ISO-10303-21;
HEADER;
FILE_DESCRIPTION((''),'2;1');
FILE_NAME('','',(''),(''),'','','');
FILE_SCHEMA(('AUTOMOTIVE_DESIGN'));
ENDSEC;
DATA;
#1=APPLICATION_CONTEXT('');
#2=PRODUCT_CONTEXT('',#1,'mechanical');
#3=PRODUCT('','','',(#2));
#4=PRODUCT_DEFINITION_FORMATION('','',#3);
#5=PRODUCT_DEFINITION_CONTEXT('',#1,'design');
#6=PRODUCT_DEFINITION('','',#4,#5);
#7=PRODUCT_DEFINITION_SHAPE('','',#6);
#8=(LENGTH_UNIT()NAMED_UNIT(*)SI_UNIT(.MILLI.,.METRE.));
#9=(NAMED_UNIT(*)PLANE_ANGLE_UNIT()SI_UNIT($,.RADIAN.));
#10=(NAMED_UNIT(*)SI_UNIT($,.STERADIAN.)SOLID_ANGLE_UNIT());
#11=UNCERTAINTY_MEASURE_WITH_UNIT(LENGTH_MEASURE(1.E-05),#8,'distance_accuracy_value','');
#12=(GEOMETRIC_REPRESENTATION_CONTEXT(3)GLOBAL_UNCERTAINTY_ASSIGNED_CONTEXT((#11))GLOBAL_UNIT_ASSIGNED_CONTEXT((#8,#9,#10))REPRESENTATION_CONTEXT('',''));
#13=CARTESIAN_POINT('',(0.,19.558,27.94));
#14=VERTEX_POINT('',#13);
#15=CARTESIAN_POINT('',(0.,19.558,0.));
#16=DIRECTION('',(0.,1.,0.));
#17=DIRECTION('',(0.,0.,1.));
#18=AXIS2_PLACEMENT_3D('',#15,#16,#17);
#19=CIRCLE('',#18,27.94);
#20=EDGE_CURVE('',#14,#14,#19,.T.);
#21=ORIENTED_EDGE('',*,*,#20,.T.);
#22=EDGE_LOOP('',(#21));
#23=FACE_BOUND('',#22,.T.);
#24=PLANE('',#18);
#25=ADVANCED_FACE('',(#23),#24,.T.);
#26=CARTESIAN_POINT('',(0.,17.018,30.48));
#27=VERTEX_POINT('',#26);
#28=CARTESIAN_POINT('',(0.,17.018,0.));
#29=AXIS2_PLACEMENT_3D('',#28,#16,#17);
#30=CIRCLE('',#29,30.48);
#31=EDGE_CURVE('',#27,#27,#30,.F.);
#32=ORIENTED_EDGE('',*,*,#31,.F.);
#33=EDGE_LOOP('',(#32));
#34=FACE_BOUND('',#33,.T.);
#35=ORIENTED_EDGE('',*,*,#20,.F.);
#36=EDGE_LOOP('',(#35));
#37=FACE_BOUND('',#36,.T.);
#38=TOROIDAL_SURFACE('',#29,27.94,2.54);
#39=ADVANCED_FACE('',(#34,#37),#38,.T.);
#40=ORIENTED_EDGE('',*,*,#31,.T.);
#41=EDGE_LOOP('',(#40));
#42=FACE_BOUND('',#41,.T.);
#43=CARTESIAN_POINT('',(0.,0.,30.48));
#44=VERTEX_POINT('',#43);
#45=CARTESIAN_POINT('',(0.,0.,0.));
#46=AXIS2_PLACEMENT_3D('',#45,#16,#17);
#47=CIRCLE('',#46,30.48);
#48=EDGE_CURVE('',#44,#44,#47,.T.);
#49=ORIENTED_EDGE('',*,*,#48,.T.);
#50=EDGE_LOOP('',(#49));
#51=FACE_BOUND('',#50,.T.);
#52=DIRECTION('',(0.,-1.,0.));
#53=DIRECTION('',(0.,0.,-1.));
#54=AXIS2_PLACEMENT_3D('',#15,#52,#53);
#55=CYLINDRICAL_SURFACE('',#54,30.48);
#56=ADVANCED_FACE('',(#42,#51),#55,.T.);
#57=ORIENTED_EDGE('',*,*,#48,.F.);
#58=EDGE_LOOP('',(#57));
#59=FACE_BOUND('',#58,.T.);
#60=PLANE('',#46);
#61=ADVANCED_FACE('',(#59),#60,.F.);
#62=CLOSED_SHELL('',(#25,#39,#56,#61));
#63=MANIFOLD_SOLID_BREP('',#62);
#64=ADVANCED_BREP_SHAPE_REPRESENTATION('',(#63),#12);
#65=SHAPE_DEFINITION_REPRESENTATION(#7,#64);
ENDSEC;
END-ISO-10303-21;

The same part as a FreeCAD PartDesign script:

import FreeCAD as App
import Part
import Sketcher

V = App.Vector
Q = App.Units.Quantity


def edges_at(feature, points):
    """Names of the edges that pass closest to the given points."""
    edges = feature.Shape.Edges
    near = lambda p: min(range(len(edges)), key=lambda i: edges[i].distToShape(Part.Vertex(*p))[0])
    return sorted({f"Edge{near(p) + 1}" for p in points})

doc = App.newDocument("Part")
body = doc.addObject("PartDesign::Body", "Body")

# Sketch on XZ plane
sketch1 = body.newObject("Sketcher::SketchObject", "Sketch")
sketch1.AttachmentSupport = (doc.getObject("XZ_Plane"), [""])
sketch1.MapMode = "FlatFace"
sketch1.addGeometry(Part.Circle(V(0, 0, 0), V(0, 0, 1), 30.48), False)
sketch1.addConstraint([
    Sketcher.Constraint("Coincident", 0, 3, -1, 1),
    Sketcher.Constraint("Diameter", 0, Q("2.4 in")),
])
pad1 = body.newObject("PartDesign::Pad", "Pad")
pad1.Profile = sketch1
pad1.Length = Q("0.77 in")
pad1.Reversed = True
doc.recompute()

fillet = body.newObject("PartDesign::Fillet", "Fillet")
fillet.Base = (pad1, edges_at(pad1, [(-30.48, 19.558, 0)]))
fillet.Radius = Q("0.1 in")

doc.recompute()
